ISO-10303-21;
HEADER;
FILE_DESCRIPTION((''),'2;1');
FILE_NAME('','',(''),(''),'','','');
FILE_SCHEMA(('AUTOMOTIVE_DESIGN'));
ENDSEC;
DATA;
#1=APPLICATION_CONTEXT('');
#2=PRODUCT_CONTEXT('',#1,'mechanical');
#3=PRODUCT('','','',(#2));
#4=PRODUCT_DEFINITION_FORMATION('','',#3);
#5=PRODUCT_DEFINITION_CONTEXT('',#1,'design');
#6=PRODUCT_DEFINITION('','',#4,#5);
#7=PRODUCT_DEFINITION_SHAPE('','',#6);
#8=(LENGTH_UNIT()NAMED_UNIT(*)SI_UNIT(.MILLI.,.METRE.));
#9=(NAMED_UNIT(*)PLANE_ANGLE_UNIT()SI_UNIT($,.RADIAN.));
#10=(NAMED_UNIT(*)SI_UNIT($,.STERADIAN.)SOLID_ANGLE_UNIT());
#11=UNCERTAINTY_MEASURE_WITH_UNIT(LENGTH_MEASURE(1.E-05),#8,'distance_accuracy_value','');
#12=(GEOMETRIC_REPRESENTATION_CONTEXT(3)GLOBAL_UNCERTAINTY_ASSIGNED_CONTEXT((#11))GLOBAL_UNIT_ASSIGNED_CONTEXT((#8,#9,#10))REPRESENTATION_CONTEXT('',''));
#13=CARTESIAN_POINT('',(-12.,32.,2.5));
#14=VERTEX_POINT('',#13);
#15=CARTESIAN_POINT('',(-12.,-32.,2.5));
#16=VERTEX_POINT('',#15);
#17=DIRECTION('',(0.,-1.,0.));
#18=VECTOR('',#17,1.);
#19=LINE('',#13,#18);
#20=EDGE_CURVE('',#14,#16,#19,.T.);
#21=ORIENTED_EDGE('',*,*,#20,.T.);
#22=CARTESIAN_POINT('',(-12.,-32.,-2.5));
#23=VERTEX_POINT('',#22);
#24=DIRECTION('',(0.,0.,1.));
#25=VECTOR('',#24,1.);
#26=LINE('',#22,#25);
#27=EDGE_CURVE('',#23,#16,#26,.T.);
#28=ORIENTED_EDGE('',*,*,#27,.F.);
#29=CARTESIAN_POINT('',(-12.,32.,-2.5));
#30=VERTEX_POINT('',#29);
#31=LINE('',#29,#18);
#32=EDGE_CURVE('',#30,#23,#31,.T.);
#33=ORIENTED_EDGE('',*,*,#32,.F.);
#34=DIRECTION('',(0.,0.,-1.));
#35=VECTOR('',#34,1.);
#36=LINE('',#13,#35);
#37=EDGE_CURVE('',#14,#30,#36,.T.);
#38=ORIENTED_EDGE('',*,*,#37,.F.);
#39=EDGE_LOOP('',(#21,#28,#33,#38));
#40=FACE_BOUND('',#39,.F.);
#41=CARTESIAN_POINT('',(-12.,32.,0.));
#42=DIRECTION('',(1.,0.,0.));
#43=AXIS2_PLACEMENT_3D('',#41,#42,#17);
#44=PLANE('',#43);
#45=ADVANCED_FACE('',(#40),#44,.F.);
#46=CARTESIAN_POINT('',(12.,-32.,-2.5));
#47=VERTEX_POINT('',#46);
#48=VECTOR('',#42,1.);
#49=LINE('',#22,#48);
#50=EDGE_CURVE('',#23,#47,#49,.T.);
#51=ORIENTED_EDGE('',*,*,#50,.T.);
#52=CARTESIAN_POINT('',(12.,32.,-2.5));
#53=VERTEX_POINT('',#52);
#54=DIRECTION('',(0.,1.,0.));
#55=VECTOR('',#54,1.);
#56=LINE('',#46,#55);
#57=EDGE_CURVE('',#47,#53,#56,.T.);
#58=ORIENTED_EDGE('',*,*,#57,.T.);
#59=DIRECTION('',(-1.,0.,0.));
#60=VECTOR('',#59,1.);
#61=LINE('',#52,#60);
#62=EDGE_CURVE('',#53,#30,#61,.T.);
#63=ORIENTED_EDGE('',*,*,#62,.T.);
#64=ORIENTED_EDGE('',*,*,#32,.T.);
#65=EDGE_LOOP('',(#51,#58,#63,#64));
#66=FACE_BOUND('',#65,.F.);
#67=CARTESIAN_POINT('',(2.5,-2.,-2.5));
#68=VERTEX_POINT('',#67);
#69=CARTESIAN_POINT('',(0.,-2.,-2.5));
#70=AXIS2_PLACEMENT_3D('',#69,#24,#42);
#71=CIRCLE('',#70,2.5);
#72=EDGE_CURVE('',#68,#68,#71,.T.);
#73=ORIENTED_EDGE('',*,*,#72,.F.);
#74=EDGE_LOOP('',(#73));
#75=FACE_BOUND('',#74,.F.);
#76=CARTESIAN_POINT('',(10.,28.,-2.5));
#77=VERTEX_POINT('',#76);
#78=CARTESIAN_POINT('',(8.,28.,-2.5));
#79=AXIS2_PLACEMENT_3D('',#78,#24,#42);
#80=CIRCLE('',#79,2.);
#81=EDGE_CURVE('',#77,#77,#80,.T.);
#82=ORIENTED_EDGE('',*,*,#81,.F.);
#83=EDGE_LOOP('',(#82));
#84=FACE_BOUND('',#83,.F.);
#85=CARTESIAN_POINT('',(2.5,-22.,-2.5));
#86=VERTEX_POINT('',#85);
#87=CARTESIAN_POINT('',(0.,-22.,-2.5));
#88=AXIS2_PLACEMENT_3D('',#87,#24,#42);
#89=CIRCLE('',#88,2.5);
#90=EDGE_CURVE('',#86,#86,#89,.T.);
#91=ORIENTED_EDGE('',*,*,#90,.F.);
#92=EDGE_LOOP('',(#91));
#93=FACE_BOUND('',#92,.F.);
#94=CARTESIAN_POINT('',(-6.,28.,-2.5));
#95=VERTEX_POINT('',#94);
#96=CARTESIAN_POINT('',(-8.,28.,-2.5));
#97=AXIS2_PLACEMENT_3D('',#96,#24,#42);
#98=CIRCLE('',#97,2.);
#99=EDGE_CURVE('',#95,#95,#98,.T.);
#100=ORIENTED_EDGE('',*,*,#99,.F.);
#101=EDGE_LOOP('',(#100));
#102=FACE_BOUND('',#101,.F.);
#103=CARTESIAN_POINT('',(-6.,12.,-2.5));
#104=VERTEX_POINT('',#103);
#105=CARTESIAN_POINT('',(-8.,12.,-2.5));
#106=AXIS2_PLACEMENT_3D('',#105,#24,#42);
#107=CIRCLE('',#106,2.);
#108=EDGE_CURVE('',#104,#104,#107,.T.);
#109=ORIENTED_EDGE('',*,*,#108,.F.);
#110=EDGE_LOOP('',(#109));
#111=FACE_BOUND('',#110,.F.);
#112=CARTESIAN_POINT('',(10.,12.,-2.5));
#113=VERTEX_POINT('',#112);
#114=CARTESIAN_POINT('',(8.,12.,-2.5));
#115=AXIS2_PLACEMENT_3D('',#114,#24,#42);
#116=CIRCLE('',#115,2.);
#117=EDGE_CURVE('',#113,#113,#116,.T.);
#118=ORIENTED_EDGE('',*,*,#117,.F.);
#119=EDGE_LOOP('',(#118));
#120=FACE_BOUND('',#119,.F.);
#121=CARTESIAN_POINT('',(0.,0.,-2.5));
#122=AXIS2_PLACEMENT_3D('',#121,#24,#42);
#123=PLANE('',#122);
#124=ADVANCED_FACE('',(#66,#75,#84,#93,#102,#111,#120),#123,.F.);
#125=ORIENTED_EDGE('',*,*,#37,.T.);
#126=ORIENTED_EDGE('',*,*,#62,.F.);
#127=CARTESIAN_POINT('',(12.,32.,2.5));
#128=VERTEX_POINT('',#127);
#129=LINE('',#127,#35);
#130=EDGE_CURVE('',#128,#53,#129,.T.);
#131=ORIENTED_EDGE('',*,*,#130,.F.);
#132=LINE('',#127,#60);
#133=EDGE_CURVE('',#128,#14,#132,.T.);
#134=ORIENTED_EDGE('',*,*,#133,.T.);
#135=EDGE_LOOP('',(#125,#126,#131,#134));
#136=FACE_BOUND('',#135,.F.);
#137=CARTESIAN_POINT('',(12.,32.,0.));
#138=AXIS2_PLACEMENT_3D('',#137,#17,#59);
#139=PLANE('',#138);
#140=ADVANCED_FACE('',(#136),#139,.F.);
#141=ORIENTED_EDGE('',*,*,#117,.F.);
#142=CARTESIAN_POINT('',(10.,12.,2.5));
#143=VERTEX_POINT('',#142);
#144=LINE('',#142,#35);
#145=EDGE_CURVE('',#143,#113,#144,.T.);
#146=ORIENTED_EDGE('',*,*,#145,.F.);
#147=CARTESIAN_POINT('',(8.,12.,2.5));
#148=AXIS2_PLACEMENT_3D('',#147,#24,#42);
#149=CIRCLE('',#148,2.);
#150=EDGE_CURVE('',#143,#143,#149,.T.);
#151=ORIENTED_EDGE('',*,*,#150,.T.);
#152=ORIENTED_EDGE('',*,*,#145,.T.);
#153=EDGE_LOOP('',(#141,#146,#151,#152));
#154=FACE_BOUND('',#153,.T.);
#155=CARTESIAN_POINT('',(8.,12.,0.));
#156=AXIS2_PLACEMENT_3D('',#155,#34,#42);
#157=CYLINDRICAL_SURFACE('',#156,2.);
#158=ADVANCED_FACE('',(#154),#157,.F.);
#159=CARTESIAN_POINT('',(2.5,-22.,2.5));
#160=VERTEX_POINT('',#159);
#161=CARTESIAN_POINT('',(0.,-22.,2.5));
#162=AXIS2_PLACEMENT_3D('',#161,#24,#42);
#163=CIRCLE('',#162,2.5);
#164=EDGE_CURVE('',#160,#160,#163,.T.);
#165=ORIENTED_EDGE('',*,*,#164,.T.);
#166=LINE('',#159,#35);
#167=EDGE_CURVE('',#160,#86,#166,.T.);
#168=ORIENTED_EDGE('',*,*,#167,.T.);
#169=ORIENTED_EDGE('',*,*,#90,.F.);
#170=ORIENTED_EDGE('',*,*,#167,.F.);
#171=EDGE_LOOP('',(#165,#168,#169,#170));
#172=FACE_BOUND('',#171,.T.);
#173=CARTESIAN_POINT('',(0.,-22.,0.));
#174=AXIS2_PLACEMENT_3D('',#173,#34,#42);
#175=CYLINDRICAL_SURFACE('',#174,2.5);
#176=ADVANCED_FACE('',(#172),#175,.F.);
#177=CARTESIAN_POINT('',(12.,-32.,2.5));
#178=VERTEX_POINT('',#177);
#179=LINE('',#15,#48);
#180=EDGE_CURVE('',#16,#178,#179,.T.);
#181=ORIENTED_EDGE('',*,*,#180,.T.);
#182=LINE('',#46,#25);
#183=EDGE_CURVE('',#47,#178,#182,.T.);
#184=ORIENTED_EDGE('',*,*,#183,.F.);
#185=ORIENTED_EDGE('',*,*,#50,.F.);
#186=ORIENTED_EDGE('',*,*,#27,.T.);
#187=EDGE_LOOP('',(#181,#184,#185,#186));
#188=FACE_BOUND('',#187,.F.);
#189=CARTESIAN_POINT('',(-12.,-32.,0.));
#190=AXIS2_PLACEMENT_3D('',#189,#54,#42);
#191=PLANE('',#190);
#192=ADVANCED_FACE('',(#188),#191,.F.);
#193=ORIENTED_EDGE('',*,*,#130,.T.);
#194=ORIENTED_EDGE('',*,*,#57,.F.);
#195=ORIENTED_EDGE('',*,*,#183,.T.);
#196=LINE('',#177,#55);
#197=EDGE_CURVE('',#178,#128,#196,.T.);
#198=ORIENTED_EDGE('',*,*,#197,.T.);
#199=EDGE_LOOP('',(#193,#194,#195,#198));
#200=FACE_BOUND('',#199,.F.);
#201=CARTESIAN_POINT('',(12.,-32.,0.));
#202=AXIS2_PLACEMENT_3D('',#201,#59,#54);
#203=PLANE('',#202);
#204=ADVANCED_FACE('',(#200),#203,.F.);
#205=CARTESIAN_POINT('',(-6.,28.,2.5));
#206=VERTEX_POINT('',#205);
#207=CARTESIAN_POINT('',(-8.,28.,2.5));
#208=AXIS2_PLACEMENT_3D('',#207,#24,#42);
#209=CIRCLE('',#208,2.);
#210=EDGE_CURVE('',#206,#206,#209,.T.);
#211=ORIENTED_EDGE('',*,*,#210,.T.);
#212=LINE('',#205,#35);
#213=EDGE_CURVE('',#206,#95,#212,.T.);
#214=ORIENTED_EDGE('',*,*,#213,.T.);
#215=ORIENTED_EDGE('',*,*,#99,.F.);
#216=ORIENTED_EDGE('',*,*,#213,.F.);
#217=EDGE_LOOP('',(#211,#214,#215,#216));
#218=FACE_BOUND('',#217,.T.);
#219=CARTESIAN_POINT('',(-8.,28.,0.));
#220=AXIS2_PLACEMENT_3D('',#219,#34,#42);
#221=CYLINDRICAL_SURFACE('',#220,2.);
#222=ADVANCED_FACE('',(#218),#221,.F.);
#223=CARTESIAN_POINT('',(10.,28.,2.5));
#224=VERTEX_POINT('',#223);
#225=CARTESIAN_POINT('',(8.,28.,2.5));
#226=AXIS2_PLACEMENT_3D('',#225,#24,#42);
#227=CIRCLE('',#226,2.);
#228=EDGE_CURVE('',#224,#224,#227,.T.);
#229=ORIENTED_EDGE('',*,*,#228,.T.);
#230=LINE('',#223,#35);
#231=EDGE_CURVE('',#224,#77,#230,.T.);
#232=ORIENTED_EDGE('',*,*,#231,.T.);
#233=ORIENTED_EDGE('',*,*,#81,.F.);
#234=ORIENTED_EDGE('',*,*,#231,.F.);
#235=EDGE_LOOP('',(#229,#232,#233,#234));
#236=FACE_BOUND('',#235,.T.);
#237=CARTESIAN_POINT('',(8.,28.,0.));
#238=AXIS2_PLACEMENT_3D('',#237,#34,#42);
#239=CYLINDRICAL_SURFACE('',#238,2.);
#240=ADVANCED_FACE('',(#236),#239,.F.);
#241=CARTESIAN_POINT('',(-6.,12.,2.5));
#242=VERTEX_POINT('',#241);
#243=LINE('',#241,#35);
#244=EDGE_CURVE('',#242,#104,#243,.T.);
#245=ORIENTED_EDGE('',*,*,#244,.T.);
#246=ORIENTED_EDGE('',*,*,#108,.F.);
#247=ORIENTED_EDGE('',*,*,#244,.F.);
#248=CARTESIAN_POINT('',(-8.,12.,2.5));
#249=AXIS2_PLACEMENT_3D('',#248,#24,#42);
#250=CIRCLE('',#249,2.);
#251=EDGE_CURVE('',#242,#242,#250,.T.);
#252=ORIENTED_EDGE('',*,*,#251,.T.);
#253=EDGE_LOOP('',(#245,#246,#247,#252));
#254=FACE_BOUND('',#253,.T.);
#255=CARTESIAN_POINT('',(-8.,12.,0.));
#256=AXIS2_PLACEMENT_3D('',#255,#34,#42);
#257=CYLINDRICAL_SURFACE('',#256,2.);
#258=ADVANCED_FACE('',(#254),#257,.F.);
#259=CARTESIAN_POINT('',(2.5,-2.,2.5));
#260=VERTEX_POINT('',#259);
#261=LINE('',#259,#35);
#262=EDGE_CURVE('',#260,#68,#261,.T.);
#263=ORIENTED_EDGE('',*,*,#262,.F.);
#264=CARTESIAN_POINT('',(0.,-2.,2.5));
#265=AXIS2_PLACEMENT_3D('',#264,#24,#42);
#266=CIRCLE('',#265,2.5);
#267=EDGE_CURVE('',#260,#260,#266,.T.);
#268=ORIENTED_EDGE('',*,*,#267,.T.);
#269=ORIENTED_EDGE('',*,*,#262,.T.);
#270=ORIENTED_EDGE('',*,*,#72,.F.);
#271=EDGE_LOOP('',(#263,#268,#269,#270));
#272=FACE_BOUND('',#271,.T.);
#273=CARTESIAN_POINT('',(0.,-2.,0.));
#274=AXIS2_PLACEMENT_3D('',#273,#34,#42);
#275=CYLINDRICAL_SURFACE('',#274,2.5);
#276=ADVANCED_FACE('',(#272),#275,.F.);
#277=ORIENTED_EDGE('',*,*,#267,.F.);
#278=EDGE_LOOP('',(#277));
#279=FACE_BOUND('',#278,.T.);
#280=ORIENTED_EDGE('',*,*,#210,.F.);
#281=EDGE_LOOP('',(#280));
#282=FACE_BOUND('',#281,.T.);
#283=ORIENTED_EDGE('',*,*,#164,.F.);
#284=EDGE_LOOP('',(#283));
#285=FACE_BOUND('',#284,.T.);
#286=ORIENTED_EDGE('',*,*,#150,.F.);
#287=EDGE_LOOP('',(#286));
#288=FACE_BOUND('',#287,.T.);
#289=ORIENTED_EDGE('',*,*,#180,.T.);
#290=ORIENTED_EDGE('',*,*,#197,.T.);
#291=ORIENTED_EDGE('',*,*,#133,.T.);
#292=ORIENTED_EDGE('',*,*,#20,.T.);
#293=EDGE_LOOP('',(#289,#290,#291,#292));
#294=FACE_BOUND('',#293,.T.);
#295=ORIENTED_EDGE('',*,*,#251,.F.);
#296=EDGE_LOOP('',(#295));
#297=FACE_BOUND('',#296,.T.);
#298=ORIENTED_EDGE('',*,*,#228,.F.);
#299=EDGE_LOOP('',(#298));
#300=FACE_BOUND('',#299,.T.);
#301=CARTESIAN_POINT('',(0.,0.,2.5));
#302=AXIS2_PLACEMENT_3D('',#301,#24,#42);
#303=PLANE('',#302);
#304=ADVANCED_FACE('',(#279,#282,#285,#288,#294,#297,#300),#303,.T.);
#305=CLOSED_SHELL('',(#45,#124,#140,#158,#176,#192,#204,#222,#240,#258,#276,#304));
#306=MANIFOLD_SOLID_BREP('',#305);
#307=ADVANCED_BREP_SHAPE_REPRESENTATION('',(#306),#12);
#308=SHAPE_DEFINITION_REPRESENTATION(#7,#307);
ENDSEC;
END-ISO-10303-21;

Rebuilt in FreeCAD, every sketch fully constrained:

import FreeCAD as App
import Part
import Sketcher

V = App.Vector

doc = App.newDocument("Part")
body = doc.addObject("PartDesign::Body", "Body")

# Sketch on XY plane
sketch1 = doc.addObject("Sketcher::SketchObject", "Sketch")
body.addObject(sketch1)
sketch1.AttachmentSupport = (doc.XY_Plane, [""])
sketch1.MapMode = "FlatFace"
sketch1.addGeometry([
    Part.LineSegment(V(-12, 32, 0), V(-12, -32, 0)),  # 0
    Part.LineSegment(V(-12, -32, 0), V(12, -32, 0)),  # 1
    Part.LineSegment(V(12, -32, 0), V(12, 32, 0)),  # 2
    Part.LineSegment(V(12, 32, 0), V(-12, 32, 0)),  # 3
    Part.Circle(V(0, -22, 0), V(0, 0, 1), 2.5),  # 4
    Part.Circle(V(0, -2, 0), V(0, 0, 1), 2.5),  # 5
    Part.Circle(V(-8, 12, 0), V(0, 0, 1), 2),  # 6
    Part.Circle(V(-8, 28, 0), V(0, 0, 1), 2),  # 7
    Part.Circle(V(8, 12, 0), V(0, 0, 1), 2),  # 8
    Part.Circle(V(8, 28, 0), V(0, 0, 1), 2),  # 9
], False)
sketch1.addConstraint([
    Sketcher.Constraint("Coincident", 0, 2, 1, 1),
    Sketcher.Constraint("Coincident", 1, 2, 2, 1),
    Sketcher.Constraint("Coincident", 2, 2, 3, 1),
    Sketcher.Constraint("Coincident", 3, 2, 0, 1),
    Sketcher.Constraint("Vertical", 0),
    Sketcher.Constraint("Horizontal", 1),
    Sketcher.Constraint("Vertical", 2),
    Sketcher.Constraint("Horizontal", 3),
    Sketcher.Constraint("Equal", 4, 5),
    Sketcher.Constraint("Equal", 6, 7),
    Sketcher.Constraint("Equal", 7, 8),
    Sketcher.Constraint("Equal", 8, 9),
    Sketcher.Constraint("Symmetric", 0, 2, 2, 2, -1, 1),
    Sketcher.Constraint("Symmetric", 6, 3, 8, 3, -2),
    Sketcher.Constraint("Symmetric", 7, 3, 9, 3, -2),
    Sketcher.Constraint("PointOnObject", 4, 3, -2),
    Sketcher.Constraint("PointOnObject", 5, 3, -2),
    Sketcher.Constraint("Vertical", 6, 3, 7, 3),
    Sketcher.Constraint("Diameter", 4, 5.0),
    Sketcher.Constraint("Diameter", 6, 4.0),
    Sketcher.Constraint("DistanceX", 1, 1, 1, 2, 24.0),
    Sketcher.Constraint("DistanceY", 0, 2, 0, 1, 64.0),
    Sketcher.Constraint("DistanceY", -1, 1, 6, 3, 12.0),
    Sketcher.Constraint("DistanceY", 4, 3, 5, 3, 20.0),
    Sketcher.Constraint("DistanceY", 6, 3, 7, 3, 16.0),
    Sketcher.Constraint("DistanceX", 6, 3, 8, 3, 16.0),
    Sketcher.Constraint("DistanceY", 0, 2, 4, 3, 10.0),
])
pad1 = doc.addObject("PartDesign::Pad", "Pad")
body.addObject(pad1)
pad1.Profile = sketch1
pad1.Length = 5
pad1.Midplane = True

doc.recompute()
